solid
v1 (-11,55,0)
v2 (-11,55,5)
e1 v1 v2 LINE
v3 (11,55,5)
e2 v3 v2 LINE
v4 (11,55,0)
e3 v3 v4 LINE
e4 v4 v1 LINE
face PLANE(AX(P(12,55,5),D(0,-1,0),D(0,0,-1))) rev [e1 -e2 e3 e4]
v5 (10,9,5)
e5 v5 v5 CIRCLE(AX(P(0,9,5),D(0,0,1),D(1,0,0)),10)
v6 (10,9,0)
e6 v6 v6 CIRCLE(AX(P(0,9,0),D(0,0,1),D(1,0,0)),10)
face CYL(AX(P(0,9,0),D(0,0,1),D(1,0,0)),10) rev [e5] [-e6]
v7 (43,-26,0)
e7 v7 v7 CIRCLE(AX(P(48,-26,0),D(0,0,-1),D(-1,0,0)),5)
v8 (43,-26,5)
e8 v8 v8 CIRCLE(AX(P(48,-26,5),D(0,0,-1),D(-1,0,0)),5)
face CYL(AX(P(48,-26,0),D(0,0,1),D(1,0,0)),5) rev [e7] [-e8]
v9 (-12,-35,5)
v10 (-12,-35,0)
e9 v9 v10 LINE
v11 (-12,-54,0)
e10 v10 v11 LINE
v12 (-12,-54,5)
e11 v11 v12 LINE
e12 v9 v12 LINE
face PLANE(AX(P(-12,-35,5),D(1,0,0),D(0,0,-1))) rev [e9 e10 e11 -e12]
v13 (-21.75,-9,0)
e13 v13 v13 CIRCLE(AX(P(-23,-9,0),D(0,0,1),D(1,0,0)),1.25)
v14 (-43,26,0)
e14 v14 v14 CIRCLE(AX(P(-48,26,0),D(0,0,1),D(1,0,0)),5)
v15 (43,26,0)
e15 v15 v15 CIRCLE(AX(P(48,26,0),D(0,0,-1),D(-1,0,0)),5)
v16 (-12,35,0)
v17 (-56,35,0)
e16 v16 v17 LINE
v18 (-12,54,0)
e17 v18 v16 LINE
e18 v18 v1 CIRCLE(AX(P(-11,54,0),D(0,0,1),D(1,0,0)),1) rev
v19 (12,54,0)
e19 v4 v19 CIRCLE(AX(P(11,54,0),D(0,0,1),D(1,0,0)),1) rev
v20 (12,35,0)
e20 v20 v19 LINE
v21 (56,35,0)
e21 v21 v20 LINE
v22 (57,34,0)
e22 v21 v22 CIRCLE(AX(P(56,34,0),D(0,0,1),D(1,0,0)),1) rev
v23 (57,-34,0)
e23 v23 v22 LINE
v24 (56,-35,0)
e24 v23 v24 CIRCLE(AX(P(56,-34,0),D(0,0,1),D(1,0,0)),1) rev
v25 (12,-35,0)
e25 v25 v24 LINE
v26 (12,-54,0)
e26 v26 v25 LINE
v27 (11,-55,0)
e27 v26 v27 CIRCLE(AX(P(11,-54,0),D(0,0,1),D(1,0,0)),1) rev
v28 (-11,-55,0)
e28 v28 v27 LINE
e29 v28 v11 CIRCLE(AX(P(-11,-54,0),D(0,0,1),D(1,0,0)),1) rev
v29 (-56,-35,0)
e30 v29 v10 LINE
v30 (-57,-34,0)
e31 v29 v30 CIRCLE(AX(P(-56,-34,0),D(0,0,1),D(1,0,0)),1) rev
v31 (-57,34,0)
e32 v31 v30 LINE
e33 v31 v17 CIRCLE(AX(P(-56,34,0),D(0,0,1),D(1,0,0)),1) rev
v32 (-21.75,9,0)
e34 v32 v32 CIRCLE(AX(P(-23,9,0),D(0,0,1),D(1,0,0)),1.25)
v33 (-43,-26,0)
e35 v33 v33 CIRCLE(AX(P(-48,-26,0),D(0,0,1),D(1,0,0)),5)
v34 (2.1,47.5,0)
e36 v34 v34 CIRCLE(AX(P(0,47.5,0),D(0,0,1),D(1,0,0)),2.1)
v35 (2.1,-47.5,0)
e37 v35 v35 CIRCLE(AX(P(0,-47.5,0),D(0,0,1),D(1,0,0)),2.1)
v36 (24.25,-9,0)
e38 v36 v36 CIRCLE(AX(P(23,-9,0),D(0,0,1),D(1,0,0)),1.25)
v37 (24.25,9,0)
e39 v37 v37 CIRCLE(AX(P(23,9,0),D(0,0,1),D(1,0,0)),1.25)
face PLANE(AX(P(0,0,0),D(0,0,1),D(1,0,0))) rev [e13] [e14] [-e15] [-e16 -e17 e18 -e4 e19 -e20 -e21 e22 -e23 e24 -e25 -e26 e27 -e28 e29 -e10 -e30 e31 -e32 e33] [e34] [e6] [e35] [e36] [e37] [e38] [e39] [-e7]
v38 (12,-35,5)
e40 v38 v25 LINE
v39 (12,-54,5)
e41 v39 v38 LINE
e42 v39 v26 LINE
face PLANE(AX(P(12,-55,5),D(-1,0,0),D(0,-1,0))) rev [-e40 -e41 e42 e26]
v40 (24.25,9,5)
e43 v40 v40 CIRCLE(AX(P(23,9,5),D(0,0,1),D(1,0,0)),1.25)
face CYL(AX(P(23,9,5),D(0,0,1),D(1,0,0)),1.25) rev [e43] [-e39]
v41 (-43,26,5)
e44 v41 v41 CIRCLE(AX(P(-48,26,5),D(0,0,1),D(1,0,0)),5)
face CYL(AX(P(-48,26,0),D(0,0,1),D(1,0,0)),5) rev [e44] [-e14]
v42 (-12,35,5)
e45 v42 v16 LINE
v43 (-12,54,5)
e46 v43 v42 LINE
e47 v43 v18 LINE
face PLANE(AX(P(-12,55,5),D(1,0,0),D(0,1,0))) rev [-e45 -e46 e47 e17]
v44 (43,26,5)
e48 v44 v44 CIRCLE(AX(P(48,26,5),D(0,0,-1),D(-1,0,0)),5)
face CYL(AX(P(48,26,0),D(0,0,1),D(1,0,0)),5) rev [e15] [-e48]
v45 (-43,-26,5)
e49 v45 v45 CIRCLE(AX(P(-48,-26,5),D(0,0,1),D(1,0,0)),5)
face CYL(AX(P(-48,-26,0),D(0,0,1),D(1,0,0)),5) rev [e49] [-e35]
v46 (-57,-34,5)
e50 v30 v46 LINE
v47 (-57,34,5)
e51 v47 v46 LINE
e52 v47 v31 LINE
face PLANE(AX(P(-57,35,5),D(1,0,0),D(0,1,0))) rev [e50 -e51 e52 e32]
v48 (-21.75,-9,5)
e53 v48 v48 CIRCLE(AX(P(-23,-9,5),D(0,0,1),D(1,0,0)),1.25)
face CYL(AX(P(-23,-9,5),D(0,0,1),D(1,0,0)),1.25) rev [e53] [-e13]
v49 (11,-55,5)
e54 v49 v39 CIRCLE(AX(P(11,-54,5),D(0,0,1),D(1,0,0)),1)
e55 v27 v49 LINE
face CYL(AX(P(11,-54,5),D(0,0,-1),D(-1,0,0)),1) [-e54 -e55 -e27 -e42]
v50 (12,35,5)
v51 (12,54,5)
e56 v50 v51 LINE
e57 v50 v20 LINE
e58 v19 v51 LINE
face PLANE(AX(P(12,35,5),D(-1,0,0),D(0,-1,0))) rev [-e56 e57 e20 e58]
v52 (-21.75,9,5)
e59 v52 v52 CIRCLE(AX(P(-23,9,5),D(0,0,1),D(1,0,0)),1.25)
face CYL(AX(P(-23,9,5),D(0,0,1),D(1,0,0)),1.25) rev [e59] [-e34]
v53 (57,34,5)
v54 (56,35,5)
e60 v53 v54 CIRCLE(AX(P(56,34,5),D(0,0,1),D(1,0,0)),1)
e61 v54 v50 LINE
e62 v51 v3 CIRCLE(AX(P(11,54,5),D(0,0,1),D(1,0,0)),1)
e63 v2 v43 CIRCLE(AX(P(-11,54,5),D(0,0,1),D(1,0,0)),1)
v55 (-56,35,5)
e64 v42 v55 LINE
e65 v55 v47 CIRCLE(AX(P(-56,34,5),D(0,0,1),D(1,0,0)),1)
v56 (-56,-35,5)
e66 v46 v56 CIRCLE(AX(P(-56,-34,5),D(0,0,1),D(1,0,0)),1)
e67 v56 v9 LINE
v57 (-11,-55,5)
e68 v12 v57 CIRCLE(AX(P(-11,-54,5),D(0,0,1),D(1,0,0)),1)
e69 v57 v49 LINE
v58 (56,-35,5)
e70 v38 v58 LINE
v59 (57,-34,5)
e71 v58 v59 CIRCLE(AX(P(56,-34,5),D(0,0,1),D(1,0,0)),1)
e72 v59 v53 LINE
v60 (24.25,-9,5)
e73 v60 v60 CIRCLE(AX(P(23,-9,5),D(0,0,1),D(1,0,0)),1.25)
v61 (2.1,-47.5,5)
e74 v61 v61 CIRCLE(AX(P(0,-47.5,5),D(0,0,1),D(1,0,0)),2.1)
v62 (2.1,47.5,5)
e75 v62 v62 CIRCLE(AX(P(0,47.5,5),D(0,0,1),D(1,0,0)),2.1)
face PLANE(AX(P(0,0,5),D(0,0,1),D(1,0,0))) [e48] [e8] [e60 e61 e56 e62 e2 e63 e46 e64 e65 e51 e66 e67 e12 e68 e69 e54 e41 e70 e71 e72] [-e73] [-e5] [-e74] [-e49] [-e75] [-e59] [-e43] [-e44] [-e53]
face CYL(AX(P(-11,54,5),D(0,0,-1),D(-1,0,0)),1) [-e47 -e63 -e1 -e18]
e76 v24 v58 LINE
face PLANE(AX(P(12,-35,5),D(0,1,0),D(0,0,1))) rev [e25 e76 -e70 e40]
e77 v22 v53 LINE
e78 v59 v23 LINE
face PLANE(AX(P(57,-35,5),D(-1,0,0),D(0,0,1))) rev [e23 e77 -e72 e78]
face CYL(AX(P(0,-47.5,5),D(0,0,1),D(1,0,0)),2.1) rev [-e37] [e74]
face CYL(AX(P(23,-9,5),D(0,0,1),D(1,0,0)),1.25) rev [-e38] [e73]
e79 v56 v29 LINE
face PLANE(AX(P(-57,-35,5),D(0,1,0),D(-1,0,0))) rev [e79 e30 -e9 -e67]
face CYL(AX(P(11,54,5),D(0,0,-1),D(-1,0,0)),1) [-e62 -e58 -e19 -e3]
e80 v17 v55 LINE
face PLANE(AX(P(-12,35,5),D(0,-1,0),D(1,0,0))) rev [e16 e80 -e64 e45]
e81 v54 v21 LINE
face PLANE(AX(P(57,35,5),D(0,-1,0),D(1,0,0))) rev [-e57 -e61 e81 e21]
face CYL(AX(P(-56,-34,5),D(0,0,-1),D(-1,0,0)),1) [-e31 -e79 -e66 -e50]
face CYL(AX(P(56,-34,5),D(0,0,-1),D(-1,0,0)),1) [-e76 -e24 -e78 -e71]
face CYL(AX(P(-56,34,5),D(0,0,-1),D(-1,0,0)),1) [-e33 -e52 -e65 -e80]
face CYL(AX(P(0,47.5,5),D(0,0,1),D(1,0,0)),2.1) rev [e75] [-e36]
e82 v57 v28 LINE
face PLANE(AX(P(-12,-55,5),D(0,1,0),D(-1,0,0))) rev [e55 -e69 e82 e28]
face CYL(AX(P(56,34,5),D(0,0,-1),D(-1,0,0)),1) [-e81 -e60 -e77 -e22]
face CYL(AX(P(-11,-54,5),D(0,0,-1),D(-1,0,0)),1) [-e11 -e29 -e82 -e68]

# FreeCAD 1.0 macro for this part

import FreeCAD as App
import Part
import Sketcher
Q = App.Units.Quantity


def edges_at(feature, points):
    """Names of the edges that pass closest to the given points."""
    edges = feature.Shape.Edges
    near = lambda p: min(range(len(edges)), key=lambda i: edges[i].distToShape(Part.Vertex(*p))[0])
    return sorted({f"Edge{near(p) + 1}" for p in points})


def add_polygon(sketch, points):
    """Adds a closed chain of lines whose ends are joined by coincident constraints."""
    first, n = sketch.GeometryCount, len(points)
    for a, b in zip(points, points[1:] + points[:1]):
        sketch.addGeometry(Part.LineSegment(App.Vector(*a, 0), App.Vector(*b, 0)), False)
    for i in range(n):
        sketch.addConstraint(Sketcher.Constraint("Coincident", first + i, 2, first + (i + 1) % n, 1))

doc = App.newDocument("Part")
params = doc.addObject("Spreadsheet::Sheet", "Params")
for row, (alias, value) in enumerate([
    ("sketch1_width", "45 mm"),
    ("sketch1_width2", "24 mm"),
    ("sketch1_height", "70 mm"),
    ("sketch1_height2", "20 mm"),
    ("pad1_length", "5 mm"),
    ("fillet_radius", "1 mm"),
    ("sketch2_diameter", "2.5 mm"),
    ("hole_diameter", "2.5 mm"),
    ("sketch3_diameter", "10 mm"),
    ("pocket1_length", "5 mm"),
    ("sketch4_diameter", "4.2 mm"),
    ("hole2_diameter", "4.2 mm"),
    ("sketch5_diameter", "20 mm"),
], start=1):
    params.set(f"A{row}", alias)
    params.set(f"B{row}", "=" + value)
    params.setAlias(f"B{row}", alias)

body = doc.addObject("PartDesign::Body", "Body")

# Sketch on XY plane
sketch1 = body.newObject("Sketcher::SketchObject", "Sketch")
sketch1.AttachmentSupport = (doc.getObject("XY_Plane"), [""])
sketch1.MapMode = "FlatFace"
add_polygon(sketch1, [(-57, 35), (-57, -35), (-12, -35), (-12, -55), (12, -55), (12, -35), (57, -35), (57, 35), (12, 35), (12, 55), (-12, 55), (-12, 35)])  # lines 0-11
sketch1.addConstraint([
    Sketcher.Constraint("Vertical", 0),
    Sketcher.Constraint("Horizontal", 1),
    Sketcher.Constraint("Vertical", 2),
    Sketcher.Constraint("Horizontal", 3),
    Sketcher.Constraint("Vertical", 4),
    Sketcher.Constraint("Horizontal", 5),
    Sketcher.Constraint("Vertical", 6),
    Sketcher.Constraint("Horizontal", 7),
    Sketcher.Constraint("Vertical", 8),
    Sketcher.Constraint("Horizontal", 9),
    Sketcher.Constraint("Vertical", 10),
    Sketcher.Constraint("Horizontal", 11),
    Sketcher.Constraint("Symmetric", 0, 2, 6, 2, -1, 1),
    Sketcher.Constraint("Symmetric", 2, 2, 8, 2, -1, 1),
    Sketcher.Constraint("Symmetric", 4, 2, 10, 2, -1, 1),
    Sketcher.Constraint("Symmetric", 1, 2, 4, 2, -2),
    Sketcher.Constraint("DistanceX", 1, 1, 1, 2, Q("45 mm")),
    Sketcher.Constraint("DistanceX", 3, 1, 3, 2, Q("24 mm")),
    Sketcher.Constraint("DistanceY", 0, 2, 0, 1, Q("70 mm")),
    Sketcher.Constraint("DistanceY", 2, 2, 2, 1, Q("20 mm")),
])
sketch1.setExpression("Constraints[28]", "Params.sketch1_width")
sketch1.setExpression("Constraints[29]", "Params.sketch1_width2")
sketch1.setExpression("Constraints[30]", "Params.sketch1_height")
sketch1.setExpression("Constraints[31]", "Params.sketch1_height2")
pad1 = body.newObject("PartDesign::Pad", "Pad")
pad1.Profile = sketch1
pad1.setExpression("Length", "Params.pad1_length")
doc.recompute()

fillet = body.newObject("PartDesign::Fillet", "Fillet")
fillet.Base = (pad1, edges_at(pad1, [
    (-12, 55, 2.5),
    (12, 55, 2.5),
    (57, 35, 2.5),
    (57, -35, 2.5),
    (12, -55, 2.5),
    (-12, -55, 2.5),
    (-57, -35, 2.5),
    (-57, 35, 2.5),
]))
fillet.setExpression("Radius", "Params.fillet_radius")

# Sketch on XY plane
sketch2 = body.newObject("Sketcher::SketchObject", "Sketch001")
sketch2.AttachmentSupport = (doc.getObject("XY_Plane"), [""])
sketch2.MapMode = "FlatFace"
sketch2.AttachmentOffset = App.Placement(App.Vector(0, 0, 5), App.Rotation())
sketch2.addGeometry([
    Part.Circle(App.Vector(-23, 9, 0), App.Vector(0, 0, 1), 1.25),
    Part.Circle(App.Vector(-23, -9, 0), App.Vector(0, 0, 1), 1.25),
], False)
sketch2.addConstraint([
    Sketcher.Constraint("Equal", 0, 1),
    Sketcher.Constraint("Symmetric", 0, 3, 1, 3, -1),
    Sketcher.Constraint("Diameter", 0, Q("2.5 mm")),
    Sketcher.Constraint("DistanceX", 0, 3, -1, 1, Q("23 mm")),
    Sketcher.Constraint("DistanceY", -1, 1, 0, 3, Q("9 mm")),
])
sketch2.setExpression("Constraints[2]", "Params.sketch2_diameter")
doc.recompute()
hole = body.newObject("PartDesign::Hole", "Hole")
hole.Profile = sketch2
hole.ThreadType = "None"
hole.setExpression("Diameter", "Params.hole_diameter")
hole.DepthType = "ThroughAll"
doc.recompute()

mirrored = body.newObject("PartDesign::Mirrored", "Mirrored")
mirrored.Originals = [hole]
mirrored.MirrorPlane = (doc.getObject("YZ_Plane"), [""])
body.Tip = mirrored

# Sketch on XY plane
sketch3 = body.newObject("Sketcher::SketchObject", "Sketch002")
sketch3.AttachmentSupport = (doc.getObject("XY_Plane"), [""])
sketch3.MapMode = "FlatFace"
sketch3.AttachmentOffset = App.Placement(App.Vector(0, 0, 5), App.Rotation())
sketch3.addGeometry([
    Part.Circle(App.Vector(-48, 26, 0), App.Vector(0, 0, 1), 5),
    Part.Circle(App.Vector(-48, -26, 0), App.Vector(0, 0, 1), 5),
], False)
sketch3.addConstraint([
    Sketcher.Constraint("Equal", 0, 1),
    Sketcher.Constraint("Symmetric", 0, 3, 1, 3, -1),
    Sketcher.Constraint("Diameter", 0, Q("10 mm")),
    Sketcher.Constraint("DistanceX", 0, 3, -1, 1, Q("48 mm")),
    Sketcher.Constraint("DistanceY", -1, 1, 0, 3, Q("26 mm")),
])
sketch3.setExpression("Constraints[2]", "Params.sketch3_diameter")
pocket1 = body.newObject("PartDesign::Pocket", "Pocket")
pocket1.Profile = sketch3
pocket1.setExpression("Length", "Params.pocket1_length")
doc.recompute()

mirrored2 = body.newObject("PartDesign::Mirrored", "Mirrored001")
mirrored2.Originals = [pocket1]
mirrored2.MirrorPlane = (doc.getObject("YZ_Plane"), [""])
body.Tip = mirrored2

# Sketch on XY plane
sketch4 = body.newObject("Sketcher::SketchObject", "Sketch003")
sketch4.AttachmentSupport = (doc.getObject("XY_Plane"), [""])
sketch4.MapMode = "FlatFace"
sketch4.AttachmentOffset = App.Placement(App.Vector(0, 0, 5), App.Rotation())
sketch4.addGeometry(Part.Circle(App.Vector(0, 47.5, 0), App.Vector(0, 0, 1), 2.1), False)
sketch4.addConstraint([
    Sketcher.Constraint("PointOnObject", 0, 3, -2),
    Sketcher.Constraint("Diameter", 0, Q("4.2 mm")),
    Sketcher.Constraint("DistanceY", -1, 1, 0, 3, Q("47.5 mm")),
])
sketch4.setExpression("Constraints[1]", "Params.sketch4_diameter")
doc.recompute()
hole2 = body.newObject("PartDesign::Hole", "Hole001")
hole2.Profile = sketch4
hole2.ThreadType = "None"
hole2.setExpression("Diameter", "Params.hole2_diameter")
hole2.DepthType = "ThroughAll"
doc.recompute()

mirrored3 = body.newObject("PartDesign::Mirrored", "Mirrored002")
mirrored3.Originals = [hole2]
mirrored3.MirrorPlane = (doc.getObject("XZ_Plane"), [""])
body.Tip = mirrored3

# Sketch on XY plane
sketch5 = body.newObject("Sketcher::SketchObject", "Sketch004")
sketch5.AttachmentSupport = (doc.getObject("XY_Plane"), [""])
sketch5.MapMode = "FlatFace"
sketch5.AttachmentOffset = App.Placement(App.Vector(0, 0, 5), App.Rotation())
sketch5.addGeometry(Part.Circle(App.Vector(0, 9, 0), App.Vector(0, 0, 1), 10), False)
sketch5.addConstraint([
    Sketcher.Constraint("PointOnObject", 0, 3, -2),
    Sketcher.Constraint("Diameter", 0, Q("20 mm")),
    Sketcher.Constraint("DistanceY", -1, 1, 0, 3, Q("9 mm")),
])
sketch5.setExpression("Constraints[1]", "Params.sketch5_diameter")
pocket2 = body.newObject("PartDesign::Pocket", "Pocket001")
pocket2.Profile = sketch5
pocket2.Type = "ThroughAll"

doc.recompute()
